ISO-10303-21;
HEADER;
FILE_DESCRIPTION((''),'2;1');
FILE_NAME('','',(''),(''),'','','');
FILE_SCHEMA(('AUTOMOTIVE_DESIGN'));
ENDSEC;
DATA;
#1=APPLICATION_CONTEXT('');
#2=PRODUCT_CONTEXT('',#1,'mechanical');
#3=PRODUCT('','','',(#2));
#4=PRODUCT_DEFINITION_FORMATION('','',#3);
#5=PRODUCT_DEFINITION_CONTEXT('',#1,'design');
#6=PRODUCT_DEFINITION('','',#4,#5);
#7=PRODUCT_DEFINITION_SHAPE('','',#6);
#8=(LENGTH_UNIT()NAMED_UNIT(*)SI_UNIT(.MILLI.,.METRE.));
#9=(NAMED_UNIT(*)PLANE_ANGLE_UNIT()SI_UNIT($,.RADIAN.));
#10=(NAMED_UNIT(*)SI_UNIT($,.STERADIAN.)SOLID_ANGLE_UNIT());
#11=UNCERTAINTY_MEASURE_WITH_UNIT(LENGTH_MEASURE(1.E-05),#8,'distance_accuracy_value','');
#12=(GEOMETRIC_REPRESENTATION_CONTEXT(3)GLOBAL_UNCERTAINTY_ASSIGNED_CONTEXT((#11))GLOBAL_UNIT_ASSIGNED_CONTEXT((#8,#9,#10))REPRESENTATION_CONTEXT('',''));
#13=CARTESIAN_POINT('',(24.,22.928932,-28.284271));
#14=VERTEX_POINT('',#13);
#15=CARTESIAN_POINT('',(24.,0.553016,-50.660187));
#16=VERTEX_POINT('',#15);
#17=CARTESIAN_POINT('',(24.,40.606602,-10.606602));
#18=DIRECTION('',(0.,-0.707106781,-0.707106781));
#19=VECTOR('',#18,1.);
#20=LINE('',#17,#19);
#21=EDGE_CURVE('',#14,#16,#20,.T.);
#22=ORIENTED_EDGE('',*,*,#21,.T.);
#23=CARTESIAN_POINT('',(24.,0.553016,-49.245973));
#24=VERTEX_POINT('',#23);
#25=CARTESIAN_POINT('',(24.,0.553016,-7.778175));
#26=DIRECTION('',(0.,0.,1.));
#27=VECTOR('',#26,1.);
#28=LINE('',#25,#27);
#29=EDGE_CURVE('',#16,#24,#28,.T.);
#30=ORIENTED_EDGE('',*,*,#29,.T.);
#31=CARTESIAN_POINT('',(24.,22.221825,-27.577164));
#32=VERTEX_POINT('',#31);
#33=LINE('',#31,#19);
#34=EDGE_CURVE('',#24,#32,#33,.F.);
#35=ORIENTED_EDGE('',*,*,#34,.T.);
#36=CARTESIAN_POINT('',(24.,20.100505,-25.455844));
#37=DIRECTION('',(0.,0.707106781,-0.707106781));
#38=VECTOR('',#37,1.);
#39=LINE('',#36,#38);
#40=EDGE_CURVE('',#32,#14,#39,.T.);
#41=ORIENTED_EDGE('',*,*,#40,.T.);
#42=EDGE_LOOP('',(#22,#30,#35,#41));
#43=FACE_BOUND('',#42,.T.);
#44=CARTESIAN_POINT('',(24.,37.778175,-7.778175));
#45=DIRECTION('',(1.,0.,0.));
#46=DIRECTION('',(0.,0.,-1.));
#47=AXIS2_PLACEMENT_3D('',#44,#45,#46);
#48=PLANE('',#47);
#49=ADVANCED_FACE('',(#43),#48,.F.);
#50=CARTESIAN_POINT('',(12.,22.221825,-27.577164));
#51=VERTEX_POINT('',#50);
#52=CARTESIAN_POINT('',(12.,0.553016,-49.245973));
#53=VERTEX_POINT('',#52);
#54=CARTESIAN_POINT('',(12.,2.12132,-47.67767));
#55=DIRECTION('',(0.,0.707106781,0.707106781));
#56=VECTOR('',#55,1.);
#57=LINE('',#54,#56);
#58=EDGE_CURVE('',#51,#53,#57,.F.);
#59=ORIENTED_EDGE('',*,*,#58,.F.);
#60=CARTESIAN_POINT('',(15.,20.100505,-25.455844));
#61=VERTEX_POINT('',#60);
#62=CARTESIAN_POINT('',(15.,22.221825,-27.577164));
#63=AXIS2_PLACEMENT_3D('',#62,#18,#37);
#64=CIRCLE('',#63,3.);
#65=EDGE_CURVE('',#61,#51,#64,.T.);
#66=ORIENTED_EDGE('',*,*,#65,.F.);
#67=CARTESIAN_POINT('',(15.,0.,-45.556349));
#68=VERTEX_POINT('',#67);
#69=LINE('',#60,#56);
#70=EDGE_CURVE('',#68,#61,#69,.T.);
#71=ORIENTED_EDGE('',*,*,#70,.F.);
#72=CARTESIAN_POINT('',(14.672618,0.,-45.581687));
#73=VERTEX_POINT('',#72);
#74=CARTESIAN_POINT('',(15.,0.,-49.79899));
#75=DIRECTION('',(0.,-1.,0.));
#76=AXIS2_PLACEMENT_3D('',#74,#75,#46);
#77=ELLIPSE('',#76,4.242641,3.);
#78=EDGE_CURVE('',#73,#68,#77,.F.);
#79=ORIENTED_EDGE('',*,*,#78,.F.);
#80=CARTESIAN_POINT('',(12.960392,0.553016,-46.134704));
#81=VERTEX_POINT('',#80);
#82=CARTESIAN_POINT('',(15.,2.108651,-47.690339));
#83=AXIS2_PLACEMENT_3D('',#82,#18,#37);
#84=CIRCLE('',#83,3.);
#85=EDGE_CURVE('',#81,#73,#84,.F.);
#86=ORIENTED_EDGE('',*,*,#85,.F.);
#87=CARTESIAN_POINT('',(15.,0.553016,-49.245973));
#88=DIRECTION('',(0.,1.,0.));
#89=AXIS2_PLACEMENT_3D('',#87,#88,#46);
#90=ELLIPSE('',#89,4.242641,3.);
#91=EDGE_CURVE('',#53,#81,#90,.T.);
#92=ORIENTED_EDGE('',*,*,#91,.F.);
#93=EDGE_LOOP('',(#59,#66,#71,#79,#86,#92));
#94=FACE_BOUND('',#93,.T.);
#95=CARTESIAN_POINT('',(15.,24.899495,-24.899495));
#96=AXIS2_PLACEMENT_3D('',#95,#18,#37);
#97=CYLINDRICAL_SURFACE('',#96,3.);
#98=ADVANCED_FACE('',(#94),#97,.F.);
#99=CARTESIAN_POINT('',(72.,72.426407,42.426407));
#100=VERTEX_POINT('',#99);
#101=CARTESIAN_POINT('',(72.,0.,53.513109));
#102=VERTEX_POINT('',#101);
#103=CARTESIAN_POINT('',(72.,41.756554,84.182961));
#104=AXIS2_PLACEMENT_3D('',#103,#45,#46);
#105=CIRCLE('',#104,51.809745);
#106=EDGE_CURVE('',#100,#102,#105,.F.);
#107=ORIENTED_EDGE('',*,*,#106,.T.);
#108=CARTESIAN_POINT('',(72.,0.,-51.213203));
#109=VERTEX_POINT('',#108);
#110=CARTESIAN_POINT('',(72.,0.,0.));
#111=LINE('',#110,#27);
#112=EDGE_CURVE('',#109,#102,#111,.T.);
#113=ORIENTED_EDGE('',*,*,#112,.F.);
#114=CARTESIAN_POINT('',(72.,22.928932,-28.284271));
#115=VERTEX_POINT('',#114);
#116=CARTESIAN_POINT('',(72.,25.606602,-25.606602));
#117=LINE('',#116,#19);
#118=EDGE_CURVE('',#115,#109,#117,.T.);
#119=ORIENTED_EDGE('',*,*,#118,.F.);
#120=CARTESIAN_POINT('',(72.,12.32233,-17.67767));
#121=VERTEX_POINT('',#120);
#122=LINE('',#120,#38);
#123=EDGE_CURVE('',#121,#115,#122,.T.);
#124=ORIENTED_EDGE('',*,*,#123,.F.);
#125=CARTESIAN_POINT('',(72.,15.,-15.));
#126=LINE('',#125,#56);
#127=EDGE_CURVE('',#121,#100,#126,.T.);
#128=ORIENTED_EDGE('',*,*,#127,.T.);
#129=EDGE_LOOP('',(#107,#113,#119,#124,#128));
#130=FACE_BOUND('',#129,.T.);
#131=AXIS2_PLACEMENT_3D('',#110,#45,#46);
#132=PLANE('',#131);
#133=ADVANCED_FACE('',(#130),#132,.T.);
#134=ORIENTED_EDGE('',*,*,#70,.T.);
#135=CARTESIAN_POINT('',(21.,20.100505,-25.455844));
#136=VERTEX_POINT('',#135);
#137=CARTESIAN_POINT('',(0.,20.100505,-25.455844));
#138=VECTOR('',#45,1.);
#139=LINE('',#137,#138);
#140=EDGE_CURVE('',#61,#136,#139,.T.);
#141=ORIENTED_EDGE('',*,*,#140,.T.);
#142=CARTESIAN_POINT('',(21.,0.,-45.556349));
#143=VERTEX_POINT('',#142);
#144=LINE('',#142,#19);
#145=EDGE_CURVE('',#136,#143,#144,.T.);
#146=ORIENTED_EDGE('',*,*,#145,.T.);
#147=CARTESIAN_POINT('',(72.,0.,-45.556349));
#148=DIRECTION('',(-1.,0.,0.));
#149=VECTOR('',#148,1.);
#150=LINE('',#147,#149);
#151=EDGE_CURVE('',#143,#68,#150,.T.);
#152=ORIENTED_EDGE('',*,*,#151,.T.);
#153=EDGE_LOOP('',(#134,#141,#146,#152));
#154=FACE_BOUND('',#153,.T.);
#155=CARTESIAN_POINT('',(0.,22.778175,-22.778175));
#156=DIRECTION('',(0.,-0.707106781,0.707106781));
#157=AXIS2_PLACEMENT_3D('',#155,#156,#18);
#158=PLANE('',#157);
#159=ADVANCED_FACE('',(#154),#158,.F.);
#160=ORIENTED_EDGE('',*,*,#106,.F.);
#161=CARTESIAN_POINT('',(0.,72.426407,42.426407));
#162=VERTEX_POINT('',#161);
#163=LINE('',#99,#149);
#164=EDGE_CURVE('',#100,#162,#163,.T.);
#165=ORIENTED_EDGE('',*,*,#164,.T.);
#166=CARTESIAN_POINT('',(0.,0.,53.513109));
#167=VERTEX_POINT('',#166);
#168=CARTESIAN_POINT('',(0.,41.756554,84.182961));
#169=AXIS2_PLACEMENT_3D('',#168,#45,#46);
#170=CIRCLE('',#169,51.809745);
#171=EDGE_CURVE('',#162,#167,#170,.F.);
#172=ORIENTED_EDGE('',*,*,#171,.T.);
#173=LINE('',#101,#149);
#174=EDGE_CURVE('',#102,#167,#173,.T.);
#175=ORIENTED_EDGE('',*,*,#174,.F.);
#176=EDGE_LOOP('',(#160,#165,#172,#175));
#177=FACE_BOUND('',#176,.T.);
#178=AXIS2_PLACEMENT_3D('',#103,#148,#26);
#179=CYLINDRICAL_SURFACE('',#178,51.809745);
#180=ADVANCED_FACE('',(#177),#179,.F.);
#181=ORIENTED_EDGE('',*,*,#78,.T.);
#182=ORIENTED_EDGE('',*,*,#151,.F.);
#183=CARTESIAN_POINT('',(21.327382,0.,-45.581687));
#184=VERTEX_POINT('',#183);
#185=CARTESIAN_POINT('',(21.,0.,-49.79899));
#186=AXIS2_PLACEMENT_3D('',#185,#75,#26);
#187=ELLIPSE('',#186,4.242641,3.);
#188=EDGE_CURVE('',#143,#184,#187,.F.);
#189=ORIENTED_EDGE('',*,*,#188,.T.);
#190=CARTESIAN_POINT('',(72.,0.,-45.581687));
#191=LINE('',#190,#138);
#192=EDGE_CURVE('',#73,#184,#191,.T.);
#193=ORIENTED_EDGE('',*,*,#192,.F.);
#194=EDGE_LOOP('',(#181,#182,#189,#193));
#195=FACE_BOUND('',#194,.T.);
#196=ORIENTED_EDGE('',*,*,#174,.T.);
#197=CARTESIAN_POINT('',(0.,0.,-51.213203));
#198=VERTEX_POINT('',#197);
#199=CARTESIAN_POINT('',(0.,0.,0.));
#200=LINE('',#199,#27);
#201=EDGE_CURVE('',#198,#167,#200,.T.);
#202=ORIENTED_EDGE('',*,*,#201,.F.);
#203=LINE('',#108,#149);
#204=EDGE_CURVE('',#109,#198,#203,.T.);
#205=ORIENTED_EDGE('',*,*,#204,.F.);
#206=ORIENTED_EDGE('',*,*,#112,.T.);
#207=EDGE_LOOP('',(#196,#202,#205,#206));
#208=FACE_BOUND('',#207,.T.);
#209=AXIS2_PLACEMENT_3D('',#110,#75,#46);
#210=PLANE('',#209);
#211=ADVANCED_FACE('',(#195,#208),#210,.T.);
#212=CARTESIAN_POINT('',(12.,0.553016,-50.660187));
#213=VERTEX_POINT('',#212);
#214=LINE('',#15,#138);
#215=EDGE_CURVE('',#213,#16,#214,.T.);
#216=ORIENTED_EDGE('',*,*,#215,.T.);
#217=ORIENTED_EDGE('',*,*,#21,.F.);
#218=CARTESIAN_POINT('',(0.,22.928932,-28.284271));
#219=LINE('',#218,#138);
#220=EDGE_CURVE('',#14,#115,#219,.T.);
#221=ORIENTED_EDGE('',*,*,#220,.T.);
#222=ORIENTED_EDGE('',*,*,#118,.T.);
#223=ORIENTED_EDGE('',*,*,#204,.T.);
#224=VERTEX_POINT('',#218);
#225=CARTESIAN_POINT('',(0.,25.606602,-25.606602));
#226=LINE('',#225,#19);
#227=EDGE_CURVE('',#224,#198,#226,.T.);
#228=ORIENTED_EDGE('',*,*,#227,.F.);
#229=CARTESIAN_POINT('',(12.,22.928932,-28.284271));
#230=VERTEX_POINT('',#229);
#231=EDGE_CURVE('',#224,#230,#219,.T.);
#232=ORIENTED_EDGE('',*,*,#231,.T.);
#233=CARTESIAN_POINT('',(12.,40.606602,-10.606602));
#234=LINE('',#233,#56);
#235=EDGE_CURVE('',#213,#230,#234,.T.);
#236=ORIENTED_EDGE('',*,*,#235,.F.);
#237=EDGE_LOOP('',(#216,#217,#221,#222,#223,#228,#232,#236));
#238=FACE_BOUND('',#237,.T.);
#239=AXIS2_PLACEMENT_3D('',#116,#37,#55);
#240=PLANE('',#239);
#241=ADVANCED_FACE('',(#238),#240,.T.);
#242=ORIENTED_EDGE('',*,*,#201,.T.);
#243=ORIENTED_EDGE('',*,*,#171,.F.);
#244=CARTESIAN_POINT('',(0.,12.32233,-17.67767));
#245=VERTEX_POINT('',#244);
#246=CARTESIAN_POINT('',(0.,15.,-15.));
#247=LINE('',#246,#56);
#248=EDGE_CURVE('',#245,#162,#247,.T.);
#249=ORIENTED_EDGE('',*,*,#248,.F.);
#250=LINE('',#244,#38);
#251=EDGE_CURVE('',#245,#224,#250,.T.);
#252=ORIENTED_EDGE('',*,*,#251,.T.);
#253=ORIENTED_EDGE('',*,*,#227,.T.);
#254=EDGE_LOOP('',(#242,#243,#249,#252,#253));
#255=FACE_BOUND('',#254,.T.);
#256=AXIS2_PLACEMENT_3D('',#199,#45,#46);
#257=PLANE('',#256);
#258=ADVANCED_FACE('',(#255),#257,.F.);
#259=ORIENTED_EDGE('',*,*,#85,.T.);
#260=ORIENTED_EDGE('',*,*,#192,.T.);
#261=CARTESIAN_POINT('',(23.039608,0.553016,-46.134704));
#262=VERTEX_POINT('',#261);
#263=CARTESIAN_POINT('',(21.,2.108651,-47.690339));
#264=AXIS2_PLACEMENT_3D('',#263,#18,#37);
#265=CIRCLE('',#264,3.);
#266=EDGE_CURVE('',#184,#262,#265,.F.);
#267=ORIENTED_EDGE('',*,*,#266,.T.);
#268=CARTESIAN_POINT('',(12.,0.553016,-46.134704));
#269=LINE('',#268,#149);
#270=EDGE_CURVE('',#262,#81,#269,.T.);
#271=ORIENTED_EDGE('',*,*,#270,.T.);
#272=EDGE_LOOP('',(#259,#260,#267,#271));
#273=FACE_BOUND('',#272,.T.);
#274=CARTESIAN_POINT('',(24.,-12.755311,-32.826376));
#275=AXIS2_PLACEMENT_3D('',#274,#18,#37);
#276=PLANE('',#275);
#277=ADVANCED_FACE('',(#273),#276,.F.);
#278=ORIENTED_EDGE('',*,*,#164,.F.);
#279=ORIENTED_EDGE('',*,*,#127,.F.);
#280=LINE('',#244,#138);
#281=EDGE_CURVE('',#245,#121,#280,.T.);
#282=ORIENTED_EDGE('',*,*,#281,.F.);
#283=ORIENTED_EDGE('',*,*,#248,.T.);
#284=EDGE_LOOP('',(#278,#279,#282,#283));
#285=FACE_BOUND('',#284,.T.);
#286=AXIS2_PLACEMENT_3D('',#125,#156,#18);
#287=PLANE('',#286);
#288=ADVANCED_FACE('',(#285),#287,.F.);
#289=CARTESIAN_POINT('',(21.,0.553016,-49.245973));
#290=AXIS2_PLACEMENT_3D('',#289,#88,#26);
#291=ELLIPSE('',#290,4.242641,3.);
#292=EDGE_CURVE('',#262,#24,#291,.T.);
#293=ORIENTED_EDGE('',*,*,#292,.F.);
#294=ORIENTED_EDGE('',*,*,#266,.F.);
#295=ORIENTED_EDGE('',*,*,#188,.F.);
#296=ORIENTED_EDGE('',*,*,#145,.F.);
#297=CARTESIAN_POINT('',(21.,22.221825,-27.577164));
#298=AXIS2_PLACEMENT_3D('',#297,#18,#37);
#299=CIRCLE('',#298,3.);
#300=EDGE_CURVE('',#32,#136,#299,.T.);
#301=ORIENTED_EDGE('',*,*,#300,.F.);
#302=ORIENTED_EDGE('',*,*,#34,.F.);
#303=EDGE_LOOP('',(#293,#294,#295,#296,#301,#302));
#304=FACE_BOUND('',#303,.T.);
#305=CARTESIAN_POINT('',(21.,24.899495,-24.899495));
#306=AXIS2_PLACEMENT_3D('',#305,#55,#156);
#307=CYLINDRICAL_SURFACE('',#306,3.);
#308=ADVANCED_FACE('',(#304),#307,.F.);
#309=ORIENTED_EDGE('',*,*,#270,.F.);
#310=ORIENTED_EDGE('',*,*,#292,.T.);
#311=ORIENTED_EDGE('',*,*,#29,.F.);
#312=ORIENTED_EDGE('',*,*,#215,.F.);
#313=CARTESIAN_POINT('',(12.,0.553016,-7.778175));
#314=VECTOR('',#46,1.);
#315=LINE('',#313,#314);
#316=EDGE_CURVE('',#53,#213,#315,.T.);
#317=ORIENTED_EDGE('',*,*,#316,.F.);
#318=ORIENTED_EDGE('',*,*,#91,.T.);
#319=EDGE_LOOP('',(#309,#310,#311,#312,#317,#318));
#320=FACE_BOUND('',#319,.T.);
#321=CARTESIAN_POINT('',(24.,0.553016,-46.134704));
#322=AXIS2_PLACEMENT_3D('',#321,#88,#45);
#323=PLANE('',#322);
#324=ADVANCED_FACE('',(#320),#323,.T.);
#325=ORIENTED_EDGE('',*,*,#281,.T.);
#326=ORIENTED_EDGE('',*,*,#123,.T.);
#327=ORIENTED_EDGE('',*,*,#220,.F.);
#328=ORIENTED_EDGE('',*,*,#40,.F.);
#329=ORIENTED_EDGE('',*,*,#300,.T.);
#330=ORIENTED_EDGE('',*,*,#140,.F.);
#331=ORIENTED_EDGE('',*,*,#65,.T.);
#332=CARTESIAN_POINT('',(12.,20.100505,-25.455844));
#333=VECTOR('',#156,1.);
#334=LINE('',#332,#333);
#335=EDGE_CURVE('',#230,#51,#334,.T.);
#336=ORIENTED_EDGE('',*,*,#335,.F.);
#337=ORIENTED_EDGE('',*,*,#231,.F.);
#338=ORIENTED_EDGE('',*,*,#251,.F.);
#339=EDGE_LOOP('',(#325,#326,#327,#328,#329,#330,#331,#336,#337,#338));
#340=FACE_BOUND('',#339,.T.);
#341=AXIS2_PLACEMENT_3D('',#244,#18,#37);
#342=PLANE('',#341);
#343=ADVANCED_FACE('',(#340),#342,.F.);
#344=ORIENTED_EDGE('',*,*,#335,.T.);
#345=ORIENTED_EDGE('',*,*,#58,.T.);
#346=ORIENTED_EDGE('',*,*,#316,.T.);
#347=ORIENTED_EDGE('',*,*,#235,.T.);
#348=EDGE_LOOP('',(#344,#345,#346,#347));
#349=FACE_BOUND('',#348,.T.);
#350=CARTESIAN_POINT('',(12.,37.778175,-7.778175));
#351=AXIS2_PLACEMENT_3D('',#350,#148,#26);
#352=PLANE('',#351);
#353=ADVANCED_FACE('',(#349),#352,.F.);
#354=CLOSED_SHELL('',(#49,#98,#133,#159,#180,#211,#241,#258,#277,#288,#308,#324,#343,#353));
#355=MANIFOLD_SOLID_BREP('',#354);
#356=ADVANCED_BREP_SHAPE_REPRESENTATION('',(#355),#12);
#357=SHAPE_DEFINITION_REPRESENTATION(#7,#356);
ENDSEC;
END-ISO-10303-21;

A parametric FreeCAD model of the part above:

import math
import FreeCAD as App
import Part
import Sketcher

V = App.Vector
Q = App.Units.Quantity


def edges_at(feature, points):
    """Names of the edges that pass closest to the given points."""
    edges = feature.Shape.Edges
    near = lambda p: min(range(len(edges)), key=lambda i: edges[i].distToShape(Part.Vertex(*p))[0])
    return sorted({f"Edge{near(p) + 1}" for p in points})

doc = App.newDocument("Part")
body = doc.addObject("PartDesign::Body", "Body")

sketch1 = body.newObject("Sketcher::SketchObject", "Sketch")
sketch1.AttachmentSupport = (doc.getObject("YZ_Plane"), [""])
sketch1.MapMode = "FlatFace"
sketch1.addGeometry(Part.LineSegment(V(41, -11, 0), V(30, 0, 0)), False)
sketch1.addGeometry(Part.LineSegment(V(30, 0, 0), V(72, 42, 0)), False)
sketch1.addGeometry(Part.ArcOfCircle(Part.Circle(V(42, 84, 0), V(0, 0, 1), 52), math.radians(-144), math.radians(-54)), False)
sketch1.addGeometry(Part.LineSegment(V(0, 54, 0), V(0, -51, 0)), False)
sketch1.addGeometry(Part.LineSegment(V(0, -51, 0), V(41, -11, 0)), False)
sketch1.addConstraint(Sketcher.Constraint("Coincident", 0, 2, 1, 1))
sketch1.addConstraint(Sketcher.Constraint("Coincident", 1, 2, 2, 2))
sketch1.addConstraint(Sketcher.Constraint("Coincident", 2, 1, 3, 1))
sketch1.addConstraint(Sketcher.Constraint("Coincident", 3, 2, 4, 1))
sketch1.addConstraint(Sketcher.Constraint("Coincident", 4, 2, 0, 1))
sketch1.addConstraint(Sketcher.Constraint("Vertical", 3))
sketch1.addConstraint(Sketcher.Constraint("PointOnObject", 0, 2, -1))
sketch1.addConstraint(Sketcher.Constraint("PointOnObject", 2, 1, -2))
sketch1.addConstraint(Sketcher.Constraint("Perpendicular", 0, 1))
sketch1.addConstraint(Sketcher.Constraint("Parallel", 1, 4))
sketch1.addConstraint(Sketcher.Constraint("Angle", 0, Q("135 deg")))
sketch1.addConstraint(Sketcher.Constraint("Distance", 0, Q("15 mm")))
sketch1.addConstraint(Sketcher.Constraint("Distance", 1, Q("60 mm")))
sketch1.addConstraint(Sketcher.Constraint("DistanceX", -1, 1, 0, 2, Q("30 mm")))
sketch1.addConstraint(Sketcher.Constraint("Radius", 2, Q("51.809745 mm")))
sketch1.addConstraint(Sketcher.Constraint("DistanceY", 1, 2, 2, 1, Q("11.086702 mm")))
pad1 = body.newObject("PartDesign::Pad", "Pad")
pad1.Profile = sketch1
pad1.Length = 72

sketch2 = body.newObject("Sketcher::SketchObject", "Sketch001")
sketch2.Placement = App.Placement(V(0, 25.606602, -25.606602), App.Rotation(V(1, 0, 0), V(0, -0.707106781, -0.707106781), V(0, 0.707106781, -0.707106781), "ZXY"))
sketch2.addGeometry(Part.LineSegment(V(12, 19, 0), V(12, -21, 0)), False)
sketch2.addGeometry(Part.LineSegment(V(12, -21, 0), V(24, -21, 0)), False)
sketch2.addGeometry(Part.LineSegment(V(24, -21, 0), V(24, 19, 0)), False)
sketch2.addGeometry(Part.LineSegment(V(24, 19, 0), V(12, 19, 0)), False)
sketch2.addConstraint(Sketcher.Constraint("Coincident", 0, 2, 1, 1))
sketch2.addConstraint(Sketcher.Constraint("Coincident", 1, 2, 2, 1))
sketch2.addConstraint(Sketcher.Constraint("Coincident", 2, 2, 3, 1))
sketch2.addConstraint(Sketcher.Constraint("Coincident", 3, 2, 0, 1))
sketch2.addConstraint(Sketcher.Constraint("Vertical", 0))
sketch2.addConstraint(Sketcher.Constraint("Horizontal", 1))
sketch2.addConstraint(Sketcher.Constraint("Vertical", 2))
sketch2.addConstraint(Sketcher.Constraint("Horizontal", 3))
sketch2.addConstraint(Sketcher.Constraint("DistanceX", 1, 1, 1, 2, Q("12 mm")))
sketch2.addConstraint(Sketcher.Constraint("DistanceY", 0, 2, 0, 1, Q("40 mm")))
sketch2.addConstraint(Sketcher.Constraint("DistanceX", -1, 1, 0, 2, Q("12 mm")))
sketch2.addConstraint(Sketcher.Constraint("DistanceY", 0, 2, -1, 1, Q("21.213203 mm")))
pocket1 = body.newObject("PartDesign::Pocket", "Pocket")
pocket1.Profile = sketch2
pocket1.Length = 4

sketch3 = body.newObject("Sketcher::SketchObject", "Sketch002")
sketch3.AttachmentSupport = (doc.getObject("YZ_Plane"), [""])
sketch3.MapMode = "FlatFace"
sketch3.AttachmentOffset = App.Placement(V(0, 0, 72), App.Rotation())
sketch3.addGeometry(Part.LineSegment(V(30, 0, 0), V(12, -18, 0)), False)
sketch3.addGeometry(Part.LineSegment(V(12, -18, 0), V(23, -28, 0)), False)
sketch3.addGeometry(Part.LineSegment(V(23, -28, 0), V(41, -11, 0)), False)
sketch3.addGeometry(Part.LineSegment(V(41, -11, 0), V(30, 0, 0)), False)
sketch3.addConstraint(Sketcher.Constraint("Coincident", 0, 2, 1, 1))
sketch3.addConstraint(Sketcher.Constraint("Coincident", 1, 2, 2, 1))
sketch3.addConstraint(Sketcher.Constraint("Coincident", 2, 2, 3, 1))
sketch3.addConstraint(Sketcher.Constraint("Coincident", 3, 2, 0, 1))
sketch3.addConstraint(Sketcher.Constraint("PointOnObject", 3, 2, -1))
sketch3.addConstraint(Sketcher.Constraint("Perpendicular", 0, 1))
sketch3.addConstraint(Sketcher.Constraint("Perpendicular", 1, 2))
sketch3.addConstraint(Sketcher.Constraint("Perpendicular", 2, 3))
sketch3.addConstraint(Sketcher.Constraint("Angle", 0, Q("-135 deg")))
sketch3.addConstraint(Sketcher.Constraint("Distance", 0, Q("25 mm")))
sketch3.addConstraint(Sketcher.Constraint("Distance", 1, Q("15 mm")))
sketch3.addConstraint(Sketcher.Constraint("DistanceX", -1, 1, 3, 2, Q("30 mm")))
pocket2 = body.newObject("PartDesign::Pocket", "Pocket001")
pocket2.Profile = sketch3
pocket2.Type = "ThroughAll"

sketch4 = body.newObject("Sketcher::SketchObject", "Sketch003")
sketch4.Placement = App.Placement(V(0, 25.606602, -25.606602), App.Rotation(V(1, 0, 0), V(0, -0.707106781, -0.707106781), V(0, 0.707106781, -0.707106781), "ZXY"))
sketch4.addGeometry(Part.LineSegment(V(12, 32, 0), V(12, 19, 0)), False)
sketch4.addGeometry(Part.LineSegment(V(12, 19, 0), V(24, 19, 0)), False)
sketch4.addGeometry(Part.LineSegment(V(24, 19, 0), V(24, 32, 0)), False)
sketch4.addGeometry(Part.LineSegment(V(24, 32, 0), V(12, 32, 0)), False)
sketch4.addConstraint(Sketcher.Constraint("Coincident", 0, 2, 1, 1))
sketch4.addConstraint(Sketcher.Constraint("Coincident", 1, 2, 2, 1))
sketch4.addConstraint(Sketcher.Constraint("Coincident", 2, 2, 3, 1))
sketch4.addConstraint(Sketcher.Constraint("Coincident", 3, 2, 0, 1))
sketch4.addConstraint(Sketcher.Constraint("Vertical", 0))
sketch4.addConstraint(Sketcher.Constraint("Horizontal", 1))
sketch4.addConstraint(Sketcher.Constraint("Vertical", 2))
sketch4.addConstraint(Sketcher.Constraint("Horizontal", 3))
sketch4.addConstraint(Sketcher.Constraint("DistanceX", 1, 1, 1, 2, Q("12 mm")))
sketch4.addConstraint(Sketcher.Constraint("DistanceX", -1, 1, 0, 2, Q("12 mm")))
sketch4.addConstraint(Sketcher.Constraint("DistanceY", 0, 2, 0, 1, Q("13.444323 mm")))
sketch4.addConstraint(Sketcher.Constraint("DistanceY", -1, 1, 2, 2, Q("32.23112 mm")))
pocket3 = body.newObject("PartDesign::Pocket", "Pocket002")
pocket3.Profile = sketch4
pocket3.Length = 4
doc.recompute()

chamfer = body.newObject("PartDesign::Chamfer", "Chamfer")
chamfer.Base = (pocket3, edges_at(pocket3, [(18, 2.816, -48.397)]))
chamfer.Size = 3.2
doc.recompute()

fillet = body.newObject("PartDesign::Fillet", "Fillet")
fillet.Base = (chamfer, edges_at(chamfer, [(24, 10.05, -35.506), (12, 10.05, -35.506)]))
fillet.Radius = 3

doc.recompute()
